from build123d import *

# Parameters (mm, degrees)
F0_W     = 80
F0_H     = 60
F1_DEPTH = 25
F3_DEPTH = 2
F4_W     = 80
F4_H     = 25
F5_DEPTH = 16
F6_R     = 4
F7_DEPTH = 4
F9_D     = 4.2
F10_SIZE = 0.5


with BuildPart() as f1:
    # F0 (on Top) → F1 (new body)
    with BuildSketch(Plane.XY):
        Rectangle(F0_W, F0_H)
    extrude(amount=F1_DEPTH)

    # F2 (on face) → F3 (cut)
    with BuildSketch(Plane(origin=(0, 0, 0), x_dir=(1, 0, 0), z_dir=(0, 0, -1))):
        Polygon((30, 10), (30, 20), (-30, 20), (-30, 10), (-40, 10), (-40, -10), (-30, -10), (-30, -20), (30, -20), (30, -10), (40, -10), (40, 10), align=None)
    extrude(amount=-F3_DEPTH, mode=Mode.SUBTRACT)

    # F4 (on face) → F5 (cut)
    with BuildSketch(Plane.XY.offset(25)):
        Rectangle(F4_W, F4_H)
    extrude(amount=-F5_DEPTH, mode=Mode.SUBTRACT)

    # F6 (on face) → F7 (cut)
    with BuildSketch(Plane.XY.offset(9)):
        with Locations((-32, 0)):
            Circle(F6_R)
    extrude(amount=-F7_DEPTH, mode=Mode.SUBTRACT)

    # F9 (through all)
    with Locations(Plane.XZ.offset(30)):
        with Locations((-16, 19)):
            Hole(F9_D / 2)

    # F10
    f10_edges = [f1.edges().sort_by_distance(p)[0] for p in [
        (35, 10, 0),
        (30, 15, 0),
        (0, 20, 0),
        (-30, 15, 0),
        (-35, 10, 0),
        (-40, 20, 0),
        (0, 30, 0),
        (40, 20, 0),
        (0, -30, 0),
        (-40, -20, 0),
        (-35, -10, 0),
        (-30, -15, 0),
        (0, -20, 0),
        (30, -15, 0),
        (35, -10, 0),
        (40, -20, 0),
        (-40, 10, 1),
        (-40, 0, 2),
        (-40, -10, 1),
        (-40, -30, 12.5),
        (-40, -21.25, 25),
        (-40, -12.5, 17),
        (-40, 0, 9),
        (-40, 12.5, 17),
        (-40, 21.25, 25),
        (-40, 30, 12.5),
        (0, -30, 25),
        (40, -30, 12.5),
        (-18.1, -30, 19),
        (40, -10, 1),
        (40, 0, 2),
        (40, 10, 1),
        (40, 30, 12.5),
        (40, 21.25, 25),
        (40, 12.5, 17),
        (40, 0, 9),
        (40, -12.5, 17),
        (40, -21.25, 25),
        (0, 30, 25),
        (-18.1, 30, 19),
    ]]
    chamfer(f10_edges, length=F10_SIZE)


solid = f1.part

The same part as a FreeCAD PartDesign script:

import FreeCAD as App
import Part
import Sketcher


def edges_at(feature, points):
    """Names of the edges that pass closest to the given points."""
    edges = feature.Shape.Edges
    near = lambda p: min(range(len(edges)), key=lambda i: edges[i].distToShape(Part.Vertex(*p))[0])
    return sorted({f"Edge{near(p) + 1}" for p in points})


def add_polygon(sketch, points):
    """Adds a closed chain of lines whose ends are joined by coincident constraints."""
    first, n = sketch.GeometryCount, len(points)
    for a, b in zip(points, points[1:] + points[:1]):
        sketch.addGeometry(Part.LineSegment(App.Vector(*a, 0), App.Vector(*b, 0)), False)
    for i in range(n):
        sketch.addConstraint(Sketcher.Constraint("Coincident", first + i, 2, first + (i + 1) % n, 1))

doc = App.newDocument("Part")
body = doc.addObject("PartDesign::Body", "Body")

# Sketch on XY plane
sketch1 = body.newObject("Sketcher::SketchObject", "Sketch")
sketch1.AttachmentSupport = (doc.getObject("XY_Plane"), [""])
sketch1.MapMode = "FlatFace"
add_polygon(sketch1, [(-40, 30), (-40, -30), (40, -30), (40, 30)])  # lines 0-3
sketch1.addConstraint([
    Sketcher.Constraint("Vertical", 0),
    Sketcher.Constraint("Horizontal", 1),
    Sketcher.Constraint("Vertical", 2),
    Sketcher.Constraint("Horizontal", 3),
    Sketcher.Constraint("Symmetric", 0, 2, 2, 2, -1, 1),
    Sketcher.Constraint("DistanceX", 1, 1, 1, 2, 80.0),
    Sketcher.Constraint("DistanceY", 0, 2, 0, 1, 60.0),
])
pad1 = body.newObject("PartDesign::Pad", "Pad")
pad1.Profile = sketch1
pad1.Length = 25

# Sketch on XY plane
sketch2 = body.newObject("Sketcher::SketchObject", "Sketch001")
sketch2.AttachmentSupport = (doc.getObject("XY_Plane"), [""])
sketch2.MapMode = "FlatFace"
add_polygon(sketch2, [(30, -10), (30, -20), (-30, -20), (-30, -10), (-40, -10), (-40, 10), (-30, 10), (-30, 20), (30, 20), (30, 10), (40, 10), (40, -10)])  # lines 0-11
sketch2.addConstraint([
    Sketcher.Constraint("Vertical", 0),
    Sketcher.Constraint("Horizontal", 1),
    Sketcher.Constraint("Vertical", 2),
    Sketcher.Constraint("Horizontal", 3),
    Sketcher.Constraint("Vertical", 4),
    Sketcher.Constraint("Horizontal", 5),
    Sketcher.Constraint("Vertical", 6),
    Sketcher.Constraint("Horizontal", 7),
    Sketcher.Constraint("Vertical", 8),
    Sketcher.Constraint("Horizontal", 9),
    Sketcher.Constraint("Vertical", 10),
    Sketcher.Constraint("Horizontal", 11),
    Sketcher.Constraint("Symmetric", 0, 2, 6, 2, -1, 1),
    Sketcher.Constraint("Symmetric", 2, 2, 8, 2, -1, 1),
    Sketcher.Constraint("Symmetric", 4, 2, 10, 2, -1, 1),
    Sketcher.Constraint("Symmetric", 5, 2, 8, 2, -2),
    Sketcher.Constraint("Equal", 11, 0),
    Sketcher.Constraint("DistanceX", 1, 2, 1, 1, 60.0),
    Sketcher.Constraint("DistanceX", 3, 2, 3, 1, 10.0),
    Sketcher.Constraint("DistanceY", 4, 1, 4, 2, 20.0),
])
pocket1 = body.newObject("PartDesign::Pocket", "Pocket")
pocket1.Profile = sketch2
pocket1.Length = 2
pocket1.Reversed = True

# Sketch on XY plane
sketch3 = body.newObject("Sketcher::SketchObject", "Sketch002")
sketch3.AttachmentSupport = (doc.getObject("XY_Plane"), [""])
sketch3.MapMode = "FlatFace"
sketch3.AttachmentOffset = App.Placement(App.Vector(0, 0, 25), App.Rotation())
add_polygon(sketch3, [(-40, 12), (-40, -12), (40, -12), (40, 12)])  # lines 0-3
sketch3.addConstraint([
    Sketcher.Constraint("Vertical", 0),
    Sketcher.Constraint("Horizontal", 1),
    Sketcher.Constraint("Vertical", 2),
    Sketcher.Constraint("Horizontal", 3),
    Sketcher.Constraint("Symmetric", 0, 2, 2, 2, -1, 1),
    Sketcher.Constraint("DistanceX", 1, 1, 1, 2, 80.0),
    Sketcher.Constraint("DistanceY", 0, 2, 0, 1, 25.0),
])
pocket2 = body.newObject("PartDesign::Pocket", "Pocket001")
pocket2.Profile = sketch3
pocket2.Length = 16

# Sketch on XY plane
sketch4 = body.newObject("Sketcher::SketchObject", "Sketch003")
sketch4.AttachmentSupport = (doc.getObject("XY_Plane"), [""])
sketch4.MapMode = "FlatFace"
sketch4.AttachmentOffset = App.Placement(App.Vector(0, 0, 9), App.Rotation())
sketch4.addGeometry(Part.Circle(App.Vector(-32, 0, 0), App.Vector(0, 0, 1), 4), False)
sketch4.addConstraint([
    Sketcher.Constraint("PointOnObject", 0, 3, -1),
    Sketcher.Constraint("Diameter", 0, 8.0),
    Sketcher.Constraint("DistanceX", 0, 3, -1, 1, 32.0),
])
pocket3 = body.newObject("PartDesign::Pocket", "Pocket002")
pocket3.Profile = sketch4
pocket3.Length = 4

# Sketch on XZ plane
sketch5 = body.newObject("Sketcher::SketchObject", "Sketch004")
sketch5.AttachmentSupport = (doc.getObject("XZ_Plane"), [""])
sketch5.MapMode = "FlatFace"
sketch5.AttachmentOffset = App.Placement(App.Vector(0, 0, 30), App.Rotation())
sketch5.addGeometry(Part.Circle(App.Vector(-16, 19, 0), App.Vector(0, 0, 1), 2.1), False)
sketch5.addConstraint([
    Sketcher.Constraint("Diameter", 0, 4.2),
    Sketcher.Constraint("DistanceX", 0, 3, -1, 1, 16.0),
    Sketcher.Constraint("DistanceY", -1, 1, 0, 3, 19.0),
])
doc.recompute()
hole = body.newObject("PartDesign::Hole", "Hole")
hole.Profile = sketch5
hole.ThreadType = "None"
hole.Diameter = 4.2
hole.DepthType = "ThroughAll"
doc.recompute()

chamfer = body.newObject("PartDesign::Chamfer", "Chamfer")
chamfer.Base = (hole, edges_at(hole, [
    (35, 10, 0),
    (30, 15, 0),
    (0, 20, 0),
    (-30, 15, 0),
    (-35, 10, 0),
    (-40, 20, 0),
    (0, 30, 0),
    (40, 20, 0),
    (0, -30, 0),
    (-40, -20, 0),
    (-35, -10, 0),
    (-30, -15, 0),
    (0, -20, 0),
    (30, -15, 0),
    (35, -10, 0),
    (40, -20, 0),
    (-40, 10, 1),
    (-40, 0, 2),
    (-40, -10, 1),
    (-40, -30, 12.5),
    (-40, -21.25, 25),
    (-40, -12.5, 17),
    (-40, 0, 9),
    (-40, 12.5, 17),
    (-40, 21.25, 25),
    (-40, 30, 12.5),
    (0, -30, 25),
    (40, -30, 12.5),
    (-13.9, -30, 19),
    (40, -10, 1),
    (40, 0, 2),
    (40, 10, 1),
    (40, 30, 12.5),
    (40, 21.25, 25),
    (40, 12.5, 17),
    (40, 0, 9),
    (40, -12.5, 17),
    (40, -21.25, 25),
    (0, 30, 25),
    (-13.9, 30, 19),
]))
chamfer.Size = 0.5

doc.recompute()
